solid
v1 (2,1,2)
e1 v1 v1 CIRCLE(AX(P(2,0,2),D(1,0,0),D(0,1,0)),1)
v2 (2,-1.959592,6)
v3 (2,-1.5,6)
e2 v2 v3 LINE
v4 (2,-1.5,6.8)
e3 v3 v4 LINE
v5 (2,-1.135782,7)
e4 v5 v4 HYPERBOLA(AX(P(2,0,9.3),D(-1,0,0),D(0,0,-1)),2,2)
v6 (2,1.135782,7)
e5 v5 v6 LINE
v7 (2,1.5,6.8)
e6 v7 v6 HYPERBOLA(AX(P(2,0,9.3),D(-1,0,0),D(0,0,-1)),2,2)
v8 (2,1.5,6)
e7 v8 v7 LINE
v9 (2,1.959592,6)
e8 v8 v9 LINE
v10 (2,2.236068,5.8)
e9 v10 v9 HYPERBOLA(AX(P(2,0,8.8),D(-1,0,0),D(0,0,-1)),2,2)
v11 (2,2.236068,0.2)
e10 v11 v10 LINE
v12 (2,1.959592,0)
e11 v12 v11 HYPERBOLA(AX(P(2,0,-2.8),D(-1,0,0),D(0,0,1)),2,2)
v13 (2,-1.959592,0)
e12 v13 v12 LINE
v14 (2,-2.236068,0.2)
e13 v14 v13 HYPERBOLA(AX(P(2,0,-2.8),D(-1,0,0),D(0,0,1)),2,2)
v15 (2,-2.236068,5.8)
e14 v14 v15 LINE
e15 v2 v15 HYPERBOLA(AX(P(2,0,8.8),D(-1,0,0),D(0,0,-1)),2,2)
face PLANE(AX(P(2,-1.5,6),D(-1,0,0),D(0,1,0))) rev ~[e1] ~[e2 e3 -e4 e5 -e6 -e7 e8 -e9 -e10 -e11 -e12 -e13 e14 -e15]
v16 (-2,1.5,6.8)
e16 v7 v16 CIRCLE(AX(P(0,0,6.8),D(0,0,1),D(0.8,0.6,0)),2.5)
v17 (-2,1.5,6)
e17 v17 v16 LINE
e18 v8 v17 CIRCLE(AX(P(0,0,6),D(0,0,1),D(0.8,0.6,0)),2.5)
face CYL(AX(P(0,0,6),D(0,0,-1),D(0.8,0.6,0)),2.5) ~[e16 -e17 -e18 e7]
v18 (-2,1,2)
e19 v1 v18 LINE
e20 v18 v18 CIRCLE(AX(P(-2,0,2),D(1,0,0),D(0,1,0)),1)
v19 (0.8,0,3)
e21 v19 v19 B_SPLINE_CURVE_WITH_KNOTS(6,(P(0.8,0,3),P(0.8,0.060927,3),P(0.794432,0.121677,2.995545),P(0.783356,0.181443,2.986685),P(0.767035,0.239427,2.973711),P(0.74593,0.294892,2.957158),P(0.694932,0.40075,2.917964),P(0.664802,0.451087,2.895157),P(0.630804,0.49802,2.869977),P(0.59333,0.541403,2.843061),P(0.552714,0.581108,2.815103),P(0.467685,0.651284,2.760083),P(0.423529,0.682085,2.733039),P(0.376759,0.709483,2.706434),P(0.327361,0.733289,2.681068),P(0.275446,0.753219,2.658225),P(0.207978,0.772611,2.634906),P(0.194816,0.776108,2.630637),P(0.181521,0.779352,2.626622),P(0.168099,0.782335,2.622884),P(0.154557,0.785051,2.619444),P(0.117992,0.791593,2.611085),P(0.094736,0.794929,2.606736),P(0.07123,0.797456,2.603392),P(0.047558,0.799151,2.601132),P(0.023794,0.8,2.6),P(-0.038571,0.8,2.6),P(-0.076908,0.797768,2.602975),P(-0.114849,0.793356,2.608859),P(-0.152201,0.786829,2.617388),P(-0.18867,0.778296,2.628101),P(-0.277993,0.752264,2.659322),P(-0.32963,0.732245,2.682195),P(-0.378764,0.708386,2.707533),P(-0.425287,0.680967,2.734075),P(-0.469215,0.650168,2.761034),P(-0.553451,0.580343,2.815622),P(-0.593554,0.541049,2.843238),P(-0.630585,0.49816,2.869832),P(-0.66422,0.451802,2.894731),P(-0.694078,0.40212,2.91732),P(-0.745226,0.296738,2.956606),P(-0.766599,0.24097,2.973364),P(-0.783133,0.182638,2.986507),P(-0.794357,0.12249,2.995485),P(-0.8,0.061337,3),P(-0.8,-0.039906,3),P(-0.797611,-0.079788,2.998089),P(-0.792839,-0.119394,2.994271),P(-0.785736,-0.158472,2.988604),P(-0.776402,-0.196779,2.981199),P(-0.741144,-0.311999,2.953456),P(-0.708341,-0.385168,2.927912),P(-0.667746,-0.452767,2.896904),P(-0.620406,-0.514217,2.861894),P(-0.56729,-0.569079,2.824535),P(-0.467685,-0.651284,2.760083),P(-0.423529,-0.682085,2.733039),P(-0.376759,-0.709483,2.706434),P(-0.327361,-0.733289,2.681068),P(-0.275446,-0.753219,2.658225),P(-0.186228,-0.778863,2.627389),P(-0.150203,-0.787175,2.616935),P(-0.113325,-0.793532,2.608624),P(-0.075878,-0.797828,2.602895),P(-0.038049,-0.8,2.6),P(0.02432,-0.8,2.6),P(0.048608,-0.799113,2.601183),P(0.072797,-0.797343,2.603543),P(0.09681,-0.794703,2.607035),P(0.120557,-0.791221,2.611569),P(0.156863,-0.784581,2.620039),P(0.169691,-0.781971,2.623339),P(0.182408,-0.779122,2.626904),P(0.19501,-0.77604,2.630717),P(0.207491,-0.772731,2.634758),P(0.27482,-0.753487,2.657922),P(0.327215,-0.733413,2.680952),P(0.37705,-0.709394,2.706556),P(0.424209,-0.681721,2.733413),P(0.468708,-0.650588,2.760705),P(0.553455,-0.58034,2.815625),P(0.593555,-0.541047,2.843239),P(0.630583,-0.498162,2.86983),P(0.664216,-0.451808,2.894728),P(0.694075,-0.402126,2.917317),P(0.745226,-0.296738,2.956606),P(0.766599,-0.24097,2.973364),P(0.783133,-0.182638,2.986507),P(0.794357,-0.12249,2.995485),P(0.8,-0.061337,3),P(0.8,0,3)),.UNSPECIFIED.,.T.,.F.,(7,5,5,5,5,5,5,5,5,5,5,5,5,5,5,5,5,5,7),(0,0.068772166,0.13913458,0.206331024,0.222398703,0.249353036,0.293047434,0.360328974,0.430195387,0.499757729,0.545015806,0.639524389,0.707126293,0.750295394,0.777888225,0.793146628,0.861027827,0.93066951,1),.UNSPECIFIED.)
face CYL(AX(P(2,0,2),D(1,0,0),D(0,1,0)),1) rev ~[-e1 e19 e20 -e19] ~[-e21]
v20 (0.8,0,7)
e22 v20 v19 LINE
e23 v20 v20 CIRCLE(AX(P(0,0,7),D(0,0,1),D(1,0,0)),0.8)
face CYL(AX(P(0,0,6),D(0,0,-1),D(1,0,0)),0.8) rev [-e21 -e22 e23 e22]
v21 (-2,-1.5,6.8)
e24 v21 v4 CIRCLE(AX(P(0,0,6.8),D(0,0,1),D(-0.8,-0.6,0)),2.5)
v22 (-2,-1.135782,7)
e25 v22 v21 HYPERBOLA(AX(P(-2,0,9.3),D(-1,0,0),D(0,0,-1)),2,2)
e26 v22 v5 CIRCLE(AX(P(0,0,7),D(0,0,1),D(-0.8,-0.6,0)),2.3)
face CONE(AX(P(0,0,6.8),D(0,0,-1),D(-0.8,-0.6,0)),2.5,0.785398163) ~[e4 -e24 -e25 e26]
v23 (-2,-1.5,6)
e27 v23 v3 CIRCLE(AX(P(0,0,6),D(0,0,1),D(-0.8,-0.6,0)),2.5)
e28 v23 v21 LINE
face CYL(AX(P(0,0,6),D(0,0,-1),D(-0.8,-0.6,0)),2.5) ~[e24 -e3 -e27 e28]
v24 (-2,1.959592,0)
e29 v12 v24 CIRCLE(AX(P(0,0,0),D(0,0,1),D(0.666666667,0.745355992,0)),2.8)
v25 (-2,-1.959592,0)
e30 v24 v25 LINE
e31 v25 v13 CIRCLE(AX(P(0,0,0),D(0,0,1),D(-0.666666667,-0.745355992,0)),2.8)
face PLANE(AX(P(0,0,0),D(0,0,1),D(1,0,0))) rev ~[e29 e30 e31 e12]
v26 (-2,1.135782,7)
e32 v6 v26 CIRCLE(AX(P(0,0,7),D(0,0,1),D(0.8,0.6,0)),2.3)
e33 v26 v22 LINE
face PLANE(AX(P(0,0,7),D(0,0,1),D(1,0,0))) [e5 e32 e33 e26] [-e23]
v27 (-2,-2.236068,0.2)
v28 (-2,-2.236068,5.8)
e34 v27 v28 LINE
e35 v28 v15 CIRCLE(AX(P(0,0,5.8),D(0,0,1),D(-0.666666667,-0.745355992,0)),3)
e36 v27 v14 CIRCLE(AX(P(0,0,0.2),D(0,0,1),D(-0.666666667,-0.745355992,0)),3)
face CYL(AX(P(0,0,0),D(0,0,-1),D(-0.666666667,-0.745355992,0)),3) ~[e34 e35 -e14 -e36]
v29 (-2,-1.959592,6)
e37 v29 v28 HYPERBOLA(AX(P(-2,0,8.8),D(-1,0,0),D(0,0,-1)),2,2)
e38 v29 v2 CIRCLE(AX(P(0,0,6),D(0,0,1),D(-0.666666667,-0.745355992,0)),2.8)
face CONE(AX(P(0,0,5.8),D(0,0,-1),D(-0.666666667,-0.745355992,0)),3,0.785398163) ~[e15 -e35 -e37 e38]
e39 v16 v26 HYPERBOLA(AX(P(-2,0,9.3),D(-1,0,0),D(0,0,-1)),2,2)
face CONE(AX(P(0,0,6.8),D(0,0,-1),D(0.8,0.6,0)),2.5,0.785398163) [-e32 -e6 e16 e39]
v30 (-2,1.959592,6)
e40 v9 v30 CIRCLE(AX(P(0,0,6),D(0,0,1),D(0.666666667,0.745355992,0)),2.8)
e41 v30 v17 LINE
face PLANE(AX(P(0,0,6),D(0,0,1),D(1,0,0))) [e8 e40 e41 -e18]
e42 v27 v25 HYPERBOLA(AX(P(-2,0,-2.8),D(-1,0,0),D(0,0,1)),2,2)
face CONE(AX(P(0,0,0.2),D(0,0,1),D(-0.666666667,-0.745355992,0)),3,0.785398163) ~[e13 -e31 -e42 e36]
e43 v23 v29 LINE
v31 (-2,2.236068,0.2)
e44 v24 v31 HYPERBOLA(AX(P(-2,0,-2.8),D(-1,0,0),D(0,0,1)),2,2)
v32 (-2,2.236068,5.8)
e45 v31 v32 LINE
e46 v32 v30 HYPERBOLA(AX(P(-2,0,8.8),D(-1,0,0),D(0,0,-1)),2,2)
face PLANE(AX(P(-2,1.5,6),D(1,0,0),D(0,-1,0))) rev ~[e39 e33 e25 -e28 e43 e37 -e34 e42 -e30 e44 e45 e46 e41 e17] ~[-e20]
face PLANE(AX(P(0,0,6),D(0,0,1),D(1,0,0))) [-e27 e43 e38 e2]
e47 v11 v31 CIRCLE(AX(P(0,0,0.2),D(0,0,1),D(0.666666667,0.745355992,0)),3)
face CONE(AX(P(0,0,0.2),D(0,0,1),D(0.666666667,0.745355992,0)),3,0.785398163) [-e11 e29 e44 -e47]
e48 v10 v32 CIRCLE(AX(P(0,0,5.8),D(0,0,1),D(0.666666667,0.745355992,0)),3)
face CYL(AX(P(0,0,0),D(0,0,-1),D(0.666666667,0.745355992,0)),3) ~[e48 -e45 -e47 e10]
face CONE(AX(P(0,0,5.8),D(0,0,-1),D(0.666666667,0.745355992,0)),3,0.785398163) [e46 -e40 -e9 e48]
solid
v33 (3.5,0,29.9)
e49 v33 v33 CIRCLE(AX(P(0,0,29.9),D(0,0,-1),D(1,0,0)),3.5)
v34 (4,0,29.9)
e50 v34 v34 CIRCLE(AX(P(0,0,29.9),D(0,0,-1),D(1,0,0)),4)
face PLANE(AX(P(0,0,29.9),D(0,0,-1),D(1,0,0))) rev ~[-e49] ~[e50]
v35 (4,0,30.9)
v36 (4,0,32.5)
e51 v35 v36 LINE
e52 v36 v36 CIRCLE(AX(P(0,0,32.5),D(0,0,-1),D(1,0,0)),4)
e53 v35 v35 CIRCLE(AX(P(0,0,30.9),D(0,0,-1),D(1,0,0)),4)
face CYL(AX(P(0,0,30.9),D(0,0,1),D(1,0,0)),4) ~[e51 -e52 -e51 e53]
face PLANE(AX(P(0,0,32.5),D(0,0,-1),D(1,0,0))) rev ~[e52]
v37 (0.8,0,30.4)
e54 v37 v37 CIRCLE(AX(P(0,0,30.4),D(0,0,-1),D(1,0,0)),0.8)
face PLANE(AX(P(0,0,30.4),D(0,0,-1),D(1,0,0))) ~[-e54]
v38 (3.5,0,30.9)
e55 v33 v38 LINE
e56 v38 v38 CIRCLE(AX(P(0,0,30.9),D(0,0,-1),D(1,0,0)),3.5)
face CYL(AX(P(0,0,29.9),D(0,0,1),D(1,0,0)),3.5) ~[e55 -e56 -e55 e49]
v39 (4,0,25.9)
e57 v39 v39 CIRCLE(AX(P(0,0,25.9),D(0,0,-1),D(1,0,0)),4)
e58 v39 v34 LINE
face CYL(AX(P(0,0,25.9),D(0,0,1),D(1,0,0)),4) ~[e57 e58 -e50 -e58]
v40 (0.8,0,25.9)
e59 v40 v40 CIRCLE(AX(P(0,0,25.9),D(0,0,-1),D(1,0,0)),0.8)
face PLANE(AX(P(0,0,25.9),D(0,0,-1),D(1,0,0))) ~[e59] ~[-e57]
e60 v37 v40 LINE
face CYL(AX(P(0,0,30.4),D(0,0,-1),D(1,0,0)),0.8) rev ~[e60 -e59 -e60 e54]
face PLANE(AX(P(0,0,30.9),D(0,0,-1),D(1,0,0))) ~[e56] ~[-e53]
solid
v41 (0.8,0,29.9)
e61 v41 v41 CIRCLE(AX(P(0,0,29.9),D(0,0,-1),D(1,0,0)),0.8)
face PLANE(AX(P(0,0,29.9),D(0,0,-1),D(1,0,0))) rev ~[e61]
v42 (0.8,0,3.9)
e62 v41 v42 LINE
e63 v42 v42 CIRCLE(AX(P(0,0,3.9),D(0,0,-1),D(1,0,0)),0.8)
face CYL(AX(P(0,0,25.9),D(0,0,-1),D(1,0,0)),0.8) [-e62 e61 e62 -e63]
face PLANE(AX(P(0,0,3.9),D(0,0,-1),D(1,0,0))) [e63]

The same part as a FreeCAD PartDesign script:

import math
import FreeCAD as App
import Part
import Sketcher

V = App.Vector


def edges_at(feature, points):
    """Names of the edges that pass closest to the given points."""
    edges = feature.Shape.Edges
    near = lambda p: min(range(len(edges)), key=lambda i: edges[i].distToShape(Part.Vertex(*p))[0])
    return sorted({f"Edge{near(p) + 1}" for p in points})


def add_polygon(sketch, points):
    """Adds a closed chain of lines whose ends are joined by coincident constraints."""
    first, n = sketch.GeometryCount, len(points)
    for a, b in zip(points, points[1:] + points[:1]):
        sketch.addGeometry(Part.LineSegment(App.Vector(*a, 0), App.Vector(*b, 0)), False)
    for i in range(n):
        sketch.addConstraint(Sketcher.Constraint("Coincident", first + i, 2, first + (i + 1) % n, 1))

doc = App.newDocument("Part")
body = doc.addObject("PartDesign::Body", "Body")

# Sketch on XZ plane
sketch1 = body.newObject("Sketcher::SketchObject", "Sketch")
sketch1.AttachmentSupport = (doc.getObject("XZ_Plane"), [""])
sketch1.MapMode = "FlatFace"
add_polygon(sketch1, [(4, 32.5), (0, 32.5), (0, 30.4), (0.8, 30.4), (0.8, 25.9), (4, 25.9), (4, 29.9), (3.5, 29.9), (3.5, 30.9), (4, 30.9)])  # lines 0-9
sketch1.addConstraint(Sketcher.Constraint("Horizontal", 0))
sketch1.addConstraint(Sketcher.Constraint("Vertical", 1))
sketch1.addConstraint(Sketcher.Constraint("Horizontal", 2))
sketch1.addConstraint(Sketcher.Constraint("Vertical", 3))
sketch1.addConstraint(Sketcher.Constraint("Horizontal", 4))
sketch1.addConstraint(Sketcher.Constraint("Vertical", 5))
sketch1.addConstraint(Sketcher.Constraint("Horizontal", 6))
sketch1.addConstraint(Sketcher.Constraint("Vertical", 7))
sketch1.addConstraint(Sketcher.Constraint("Horizontal", 8))
sketch1.addConstraint(Sketcher.Constraint("Vertical", 9))
sketch1.addConstraint(Sketcher.Constraint("PointOnObject", 0, 2, -2))
sketch1.addConstraint(Sketcher.Constraint("Vertical", 5, 2, 8, 2))
sketch1.addConstraint(Sketcher.Constraint("Equal", 0, 5))
sketch1.addConstraint(Sketcher.Constraint("DistanceX", 0, 2, 0, 1, 4.0))
sketch1.addConstraint(Sketcher.Constraint("DistanceY", 7, 1, 7, 2, 1.0))
sketch1.addConstraint(Sketcher.Constraint("DistanceX", 2, 1, 2, 2, 0.8))
sketch1.addConstraint(Sketcher.Constraint("DistanceX", 6, 2, 6, 1, 0.5))
sketch1.addConstraint(Sketcher.Constraint("DistanceY", 1, 2, 1, 1, 2.1))
sketch1.addConstraint(Sketcher.Constraint("DistanceY", 3, 2, 3, 1, 4.5))
sketch1.addConstraint(Sketcher.Constraint("DistanceY", -1, 1, 0, 2, 32.5))
revolution = body.newObject("PartDesign::Revolution", "Revolution")
revolution.Profile = sketch1
revolution.ReferenceAxis = (sketch1, ["V_Axis"])
revolution.Angle = 360
body2 = doc.addObject("PartDesign::Body", "Body001")

# Sketch on XY plane
sketch2 = body2.newObject("Sketcher::SketchObject", "Sketch001")
sketch2.AttachmentSupport = (doc.getObject("XY_Plane001"), [""])
sketch2.MapMode = "FlatFace"
sketch2.AttachmentOffset = App.Placement(V(0, 0, 25.9), App.Rotation())
sketch2.addGeometry(Part.Circle(V(0, 0, 0), V(0, 0, 1), 0.8), False)
sketch2.addConstraint(Sketcher.Constraint("Coincident", 0, 3, -1, 1))
sketch2.addConstraint(Sketcher.Constraint("Diameter", 0, 1.6))
pad1 = body2.newObject("PartDesign::Pad", "Pad")
pad1.Profile = sketch2
pad1.Type = "TwoLengths"
pad1.Length = 22
pad1.Length2 = 4
pad1.Reversed = True
body3 = doc.addObject("PartDesign::Body", "Body002")

# Sketch on XY plane
sketch3 = body3.newObject("Sketcher::SketchObject", "Sketch002")
sketch3.AttachmentSupport = (doc.getObject("XY_Plane002"), [""])
sketch3.MapMode = "FlatFace"
sketch3.addGeometry(Part.LineSegment(V(2, -2.2, 0), V(2, 2.2, 0)), False)
sketch3.addGeometry(Part.ArcOfCircle(Part.Circle(V(0, 0, 0), V(0, 0, 1), 3), math.radians(48), math.radians(132)), False)
sketch3.addGeometry(Part.LineSegment(V(-2, 2.2, 0), V(-2, -2.2, 0)), False)
sketch3.addGeometry(Part.ArcOfCircle(Part.Circle(V(0, 0, 0), V(0, 0, 1), 3), math.radians(-132), math.radians(-48)), False)
sketch3.addConstraint(Sketcher.Constraint("Coincident", 0, 2, 1, 1))
sketch3.addConstraint(Sketcher.Constraint("Coincident", 1, 2, 2, 1))
sketch3.addConstraint(Sketcher.Constraint("Coincident", 2, 2, 3, 1))
sketch3.addConstraint(Sketcher.Constraint("Coincident", 3, 2, 0, 1))
sketch3.addConstraint(Sketcher.Constraint("Vertical", 0))
sketch3.addConstraint(Sketcher.Constraint("Vertical", 2))
sketch3.addConstraint(Sketcher.Constraint("Coincident", 1, 3, -1, 1))
sketch3.addConstraint(Sketcher.Constraint("Coincident", 3, 3, -1, 1))
sketch3.addConstraint(Sketcher.Constraint("Equal", 1, 3))
sketch3.addConstraint(Sketcher.Constraint("Horizontal", 0, 2, 1, 2))
sketch3.addConstraint(Sketcher.Constraint("Radius", 1, 3.0))
sketch3.addConstraint(Sketcher.Constraint("DistanceX", -1, 1, 0, 2, 2.0))
pad2 = body3.newObject("PartDesign::Pad", "Pad001")
pad2.Profile = sketch3
pad2.Length = 6

# Sketch on XY plane
sketch4 = body3.newObject("Sketcher::SketchObject", "Sketch003")
sketch4.AttachmentSupport = (doc.getObject("XY_Plane002"), [""])
sketch4.MapMode = "FlatFace"
sketch4.AttachmentOffset = App.Placement(V(0, 0, 6), App.Rotation())
sketch4.addGeometry(Part.Circle(V(0, 0, 0), V(0, 0, 1), 0.8), False)
sketch4.addConstraint(Sketcher.Constraint("Coincident", 0, 3, -1, 1))
sketch4.addConstraint(Sketcher.Constraint("Diameter", 0, 1.6))
pocket1 = body3.newObject("PartDesign::Pocket", "Pocket")
pocket1.Profile = sketch4
pocket1.Length = 4

# Sketch on XY plane
sketch5 = body3.newObject("Sketcher::SketchObject", "Sketch004")
sketch5.AttachmentSupport = (doc.getObject("XY_Plane002"), [""])
sketch5.MapMode = "FlatFace"
sketch5.AttachmentOffset = App.Placement(V(0, 0, 6), App.Rotation())
sketch5.addGeometry(Part.ArcOfCircle(Part.Circle(V(0, 0, 0), V(0, 0, 1), 2.5), math.radians(37), math.radians(143)), False)
sketch5.addGeometry(Part.LineSegment(V(-2, 1.5, 0), V(-2, -1.5, 0)), False)
sketch5.addGeometry(Part.ArcOfCircle(Part.Circle(V(0, 0, 0), V(0, 0, 1), 2.5), math.radians(-143), math.radians(-37)), False)
sketch5.addGeometry(Part.LineSegment(V(2, -1.5, 0), V(2, 1.5, 0)), False)
sketch5.addGeometry(Part.Circle(V(0, 0, 0), V(0, 0, 1), 0.8), False)
sketch5.addConstraint(Sketcher.Constraint("Coincident", 0, 2, 1, 1))
sketch5.addConstraint(Sketcher.Constraint("Coincident", 1, 2, 2, 1))
sketch5.addConstraint(Sketcher.Constraint("Coincident", 2, 2, 3, 1))
sketch5.addConstraint(Sketcher.Constraint("Coincident", 3, 2, 0, 1))
sketch5.addConstraint(Sketcher.Constraint("Vertical", 1))
sketch5.addConstraint(Sketcher.Constraint("Vertical", 3))
sketch5.addConstraint(Sketcher.Constraint("Coincident", 0, 3, -1, 1))
sketch5.addConstraint(Sketcher.Constraint("Coincident", 2, 3, -1, 1))
sketch5.addConstraint(Sketcher.Constraint("Coincident", 4, 3, -1, 1))
sketch5.addConstraint(Sketcher.Constraint("Equal", 0, 2))
sketch5.addConstraint(Sketcher.Constraint("Horizontal", 1, 2, 2, 2))
sketch5.addConstraint(Sketcher.Constraint("Diameter", 4, 1.6))
sketch5.addConstraint(Sketcher.Constraint("Radius", 0, 2.5))
sketch5.addConstraint(Sketcher.Constraint("DistanceY", 1, 2, 1, 1, 3.0))
pad3 = body3.newObject("PartDesign::Pad", "Pad002")
pad3.Profile = sketch5
pad3.Length = 1
doc.recompute()

chamfer = body3.newObject("PartDesign::Chamfer", "Chamfer")
chamfer.Base = (pad3, edges_at(pad3, [
    (0, -3, 6),
    (0, -2.5, 7),
    (0, 3, 6),
    (0, 2.5, 7),
    (0, -3, 0),
    (0, 3, 0),
]))
chamfer.Size = 0.2

# Sketch on YZ plane
sketch6 = body3.newObject("Sketcher::SketchObject", "Sketch005")
sketch6.AttachmentSupport = (doc.getObject("YZ_Plane002"), [""])
sketch6.MapMode = "FlatFace"
sketch6.AttachmentOffset = App.Placement(V(0, 0, 2), App.Rotation())
sketch6.addGeometry(Part.Circle(V(0, 2, 0), V(0, 0, 1), 1), False)
sketch6.addConstraint(Sketcher.Constraint("PointOnObject", 0, 3, -2))
sketch6.addConstraint(Sketcher.Constraint("Diameter", 0, 2.0))
sketch6.addConstraint(Sketcher.Constraint("DistanceY", -1, 1, 0, 3, 2.0))
pocket2 = body3.newObject("PartDesign::Pocket", "Pocket001")
pocket2.Profile = sketch6
pocket2.Type = "ThroughAll"

doc.recompute()
